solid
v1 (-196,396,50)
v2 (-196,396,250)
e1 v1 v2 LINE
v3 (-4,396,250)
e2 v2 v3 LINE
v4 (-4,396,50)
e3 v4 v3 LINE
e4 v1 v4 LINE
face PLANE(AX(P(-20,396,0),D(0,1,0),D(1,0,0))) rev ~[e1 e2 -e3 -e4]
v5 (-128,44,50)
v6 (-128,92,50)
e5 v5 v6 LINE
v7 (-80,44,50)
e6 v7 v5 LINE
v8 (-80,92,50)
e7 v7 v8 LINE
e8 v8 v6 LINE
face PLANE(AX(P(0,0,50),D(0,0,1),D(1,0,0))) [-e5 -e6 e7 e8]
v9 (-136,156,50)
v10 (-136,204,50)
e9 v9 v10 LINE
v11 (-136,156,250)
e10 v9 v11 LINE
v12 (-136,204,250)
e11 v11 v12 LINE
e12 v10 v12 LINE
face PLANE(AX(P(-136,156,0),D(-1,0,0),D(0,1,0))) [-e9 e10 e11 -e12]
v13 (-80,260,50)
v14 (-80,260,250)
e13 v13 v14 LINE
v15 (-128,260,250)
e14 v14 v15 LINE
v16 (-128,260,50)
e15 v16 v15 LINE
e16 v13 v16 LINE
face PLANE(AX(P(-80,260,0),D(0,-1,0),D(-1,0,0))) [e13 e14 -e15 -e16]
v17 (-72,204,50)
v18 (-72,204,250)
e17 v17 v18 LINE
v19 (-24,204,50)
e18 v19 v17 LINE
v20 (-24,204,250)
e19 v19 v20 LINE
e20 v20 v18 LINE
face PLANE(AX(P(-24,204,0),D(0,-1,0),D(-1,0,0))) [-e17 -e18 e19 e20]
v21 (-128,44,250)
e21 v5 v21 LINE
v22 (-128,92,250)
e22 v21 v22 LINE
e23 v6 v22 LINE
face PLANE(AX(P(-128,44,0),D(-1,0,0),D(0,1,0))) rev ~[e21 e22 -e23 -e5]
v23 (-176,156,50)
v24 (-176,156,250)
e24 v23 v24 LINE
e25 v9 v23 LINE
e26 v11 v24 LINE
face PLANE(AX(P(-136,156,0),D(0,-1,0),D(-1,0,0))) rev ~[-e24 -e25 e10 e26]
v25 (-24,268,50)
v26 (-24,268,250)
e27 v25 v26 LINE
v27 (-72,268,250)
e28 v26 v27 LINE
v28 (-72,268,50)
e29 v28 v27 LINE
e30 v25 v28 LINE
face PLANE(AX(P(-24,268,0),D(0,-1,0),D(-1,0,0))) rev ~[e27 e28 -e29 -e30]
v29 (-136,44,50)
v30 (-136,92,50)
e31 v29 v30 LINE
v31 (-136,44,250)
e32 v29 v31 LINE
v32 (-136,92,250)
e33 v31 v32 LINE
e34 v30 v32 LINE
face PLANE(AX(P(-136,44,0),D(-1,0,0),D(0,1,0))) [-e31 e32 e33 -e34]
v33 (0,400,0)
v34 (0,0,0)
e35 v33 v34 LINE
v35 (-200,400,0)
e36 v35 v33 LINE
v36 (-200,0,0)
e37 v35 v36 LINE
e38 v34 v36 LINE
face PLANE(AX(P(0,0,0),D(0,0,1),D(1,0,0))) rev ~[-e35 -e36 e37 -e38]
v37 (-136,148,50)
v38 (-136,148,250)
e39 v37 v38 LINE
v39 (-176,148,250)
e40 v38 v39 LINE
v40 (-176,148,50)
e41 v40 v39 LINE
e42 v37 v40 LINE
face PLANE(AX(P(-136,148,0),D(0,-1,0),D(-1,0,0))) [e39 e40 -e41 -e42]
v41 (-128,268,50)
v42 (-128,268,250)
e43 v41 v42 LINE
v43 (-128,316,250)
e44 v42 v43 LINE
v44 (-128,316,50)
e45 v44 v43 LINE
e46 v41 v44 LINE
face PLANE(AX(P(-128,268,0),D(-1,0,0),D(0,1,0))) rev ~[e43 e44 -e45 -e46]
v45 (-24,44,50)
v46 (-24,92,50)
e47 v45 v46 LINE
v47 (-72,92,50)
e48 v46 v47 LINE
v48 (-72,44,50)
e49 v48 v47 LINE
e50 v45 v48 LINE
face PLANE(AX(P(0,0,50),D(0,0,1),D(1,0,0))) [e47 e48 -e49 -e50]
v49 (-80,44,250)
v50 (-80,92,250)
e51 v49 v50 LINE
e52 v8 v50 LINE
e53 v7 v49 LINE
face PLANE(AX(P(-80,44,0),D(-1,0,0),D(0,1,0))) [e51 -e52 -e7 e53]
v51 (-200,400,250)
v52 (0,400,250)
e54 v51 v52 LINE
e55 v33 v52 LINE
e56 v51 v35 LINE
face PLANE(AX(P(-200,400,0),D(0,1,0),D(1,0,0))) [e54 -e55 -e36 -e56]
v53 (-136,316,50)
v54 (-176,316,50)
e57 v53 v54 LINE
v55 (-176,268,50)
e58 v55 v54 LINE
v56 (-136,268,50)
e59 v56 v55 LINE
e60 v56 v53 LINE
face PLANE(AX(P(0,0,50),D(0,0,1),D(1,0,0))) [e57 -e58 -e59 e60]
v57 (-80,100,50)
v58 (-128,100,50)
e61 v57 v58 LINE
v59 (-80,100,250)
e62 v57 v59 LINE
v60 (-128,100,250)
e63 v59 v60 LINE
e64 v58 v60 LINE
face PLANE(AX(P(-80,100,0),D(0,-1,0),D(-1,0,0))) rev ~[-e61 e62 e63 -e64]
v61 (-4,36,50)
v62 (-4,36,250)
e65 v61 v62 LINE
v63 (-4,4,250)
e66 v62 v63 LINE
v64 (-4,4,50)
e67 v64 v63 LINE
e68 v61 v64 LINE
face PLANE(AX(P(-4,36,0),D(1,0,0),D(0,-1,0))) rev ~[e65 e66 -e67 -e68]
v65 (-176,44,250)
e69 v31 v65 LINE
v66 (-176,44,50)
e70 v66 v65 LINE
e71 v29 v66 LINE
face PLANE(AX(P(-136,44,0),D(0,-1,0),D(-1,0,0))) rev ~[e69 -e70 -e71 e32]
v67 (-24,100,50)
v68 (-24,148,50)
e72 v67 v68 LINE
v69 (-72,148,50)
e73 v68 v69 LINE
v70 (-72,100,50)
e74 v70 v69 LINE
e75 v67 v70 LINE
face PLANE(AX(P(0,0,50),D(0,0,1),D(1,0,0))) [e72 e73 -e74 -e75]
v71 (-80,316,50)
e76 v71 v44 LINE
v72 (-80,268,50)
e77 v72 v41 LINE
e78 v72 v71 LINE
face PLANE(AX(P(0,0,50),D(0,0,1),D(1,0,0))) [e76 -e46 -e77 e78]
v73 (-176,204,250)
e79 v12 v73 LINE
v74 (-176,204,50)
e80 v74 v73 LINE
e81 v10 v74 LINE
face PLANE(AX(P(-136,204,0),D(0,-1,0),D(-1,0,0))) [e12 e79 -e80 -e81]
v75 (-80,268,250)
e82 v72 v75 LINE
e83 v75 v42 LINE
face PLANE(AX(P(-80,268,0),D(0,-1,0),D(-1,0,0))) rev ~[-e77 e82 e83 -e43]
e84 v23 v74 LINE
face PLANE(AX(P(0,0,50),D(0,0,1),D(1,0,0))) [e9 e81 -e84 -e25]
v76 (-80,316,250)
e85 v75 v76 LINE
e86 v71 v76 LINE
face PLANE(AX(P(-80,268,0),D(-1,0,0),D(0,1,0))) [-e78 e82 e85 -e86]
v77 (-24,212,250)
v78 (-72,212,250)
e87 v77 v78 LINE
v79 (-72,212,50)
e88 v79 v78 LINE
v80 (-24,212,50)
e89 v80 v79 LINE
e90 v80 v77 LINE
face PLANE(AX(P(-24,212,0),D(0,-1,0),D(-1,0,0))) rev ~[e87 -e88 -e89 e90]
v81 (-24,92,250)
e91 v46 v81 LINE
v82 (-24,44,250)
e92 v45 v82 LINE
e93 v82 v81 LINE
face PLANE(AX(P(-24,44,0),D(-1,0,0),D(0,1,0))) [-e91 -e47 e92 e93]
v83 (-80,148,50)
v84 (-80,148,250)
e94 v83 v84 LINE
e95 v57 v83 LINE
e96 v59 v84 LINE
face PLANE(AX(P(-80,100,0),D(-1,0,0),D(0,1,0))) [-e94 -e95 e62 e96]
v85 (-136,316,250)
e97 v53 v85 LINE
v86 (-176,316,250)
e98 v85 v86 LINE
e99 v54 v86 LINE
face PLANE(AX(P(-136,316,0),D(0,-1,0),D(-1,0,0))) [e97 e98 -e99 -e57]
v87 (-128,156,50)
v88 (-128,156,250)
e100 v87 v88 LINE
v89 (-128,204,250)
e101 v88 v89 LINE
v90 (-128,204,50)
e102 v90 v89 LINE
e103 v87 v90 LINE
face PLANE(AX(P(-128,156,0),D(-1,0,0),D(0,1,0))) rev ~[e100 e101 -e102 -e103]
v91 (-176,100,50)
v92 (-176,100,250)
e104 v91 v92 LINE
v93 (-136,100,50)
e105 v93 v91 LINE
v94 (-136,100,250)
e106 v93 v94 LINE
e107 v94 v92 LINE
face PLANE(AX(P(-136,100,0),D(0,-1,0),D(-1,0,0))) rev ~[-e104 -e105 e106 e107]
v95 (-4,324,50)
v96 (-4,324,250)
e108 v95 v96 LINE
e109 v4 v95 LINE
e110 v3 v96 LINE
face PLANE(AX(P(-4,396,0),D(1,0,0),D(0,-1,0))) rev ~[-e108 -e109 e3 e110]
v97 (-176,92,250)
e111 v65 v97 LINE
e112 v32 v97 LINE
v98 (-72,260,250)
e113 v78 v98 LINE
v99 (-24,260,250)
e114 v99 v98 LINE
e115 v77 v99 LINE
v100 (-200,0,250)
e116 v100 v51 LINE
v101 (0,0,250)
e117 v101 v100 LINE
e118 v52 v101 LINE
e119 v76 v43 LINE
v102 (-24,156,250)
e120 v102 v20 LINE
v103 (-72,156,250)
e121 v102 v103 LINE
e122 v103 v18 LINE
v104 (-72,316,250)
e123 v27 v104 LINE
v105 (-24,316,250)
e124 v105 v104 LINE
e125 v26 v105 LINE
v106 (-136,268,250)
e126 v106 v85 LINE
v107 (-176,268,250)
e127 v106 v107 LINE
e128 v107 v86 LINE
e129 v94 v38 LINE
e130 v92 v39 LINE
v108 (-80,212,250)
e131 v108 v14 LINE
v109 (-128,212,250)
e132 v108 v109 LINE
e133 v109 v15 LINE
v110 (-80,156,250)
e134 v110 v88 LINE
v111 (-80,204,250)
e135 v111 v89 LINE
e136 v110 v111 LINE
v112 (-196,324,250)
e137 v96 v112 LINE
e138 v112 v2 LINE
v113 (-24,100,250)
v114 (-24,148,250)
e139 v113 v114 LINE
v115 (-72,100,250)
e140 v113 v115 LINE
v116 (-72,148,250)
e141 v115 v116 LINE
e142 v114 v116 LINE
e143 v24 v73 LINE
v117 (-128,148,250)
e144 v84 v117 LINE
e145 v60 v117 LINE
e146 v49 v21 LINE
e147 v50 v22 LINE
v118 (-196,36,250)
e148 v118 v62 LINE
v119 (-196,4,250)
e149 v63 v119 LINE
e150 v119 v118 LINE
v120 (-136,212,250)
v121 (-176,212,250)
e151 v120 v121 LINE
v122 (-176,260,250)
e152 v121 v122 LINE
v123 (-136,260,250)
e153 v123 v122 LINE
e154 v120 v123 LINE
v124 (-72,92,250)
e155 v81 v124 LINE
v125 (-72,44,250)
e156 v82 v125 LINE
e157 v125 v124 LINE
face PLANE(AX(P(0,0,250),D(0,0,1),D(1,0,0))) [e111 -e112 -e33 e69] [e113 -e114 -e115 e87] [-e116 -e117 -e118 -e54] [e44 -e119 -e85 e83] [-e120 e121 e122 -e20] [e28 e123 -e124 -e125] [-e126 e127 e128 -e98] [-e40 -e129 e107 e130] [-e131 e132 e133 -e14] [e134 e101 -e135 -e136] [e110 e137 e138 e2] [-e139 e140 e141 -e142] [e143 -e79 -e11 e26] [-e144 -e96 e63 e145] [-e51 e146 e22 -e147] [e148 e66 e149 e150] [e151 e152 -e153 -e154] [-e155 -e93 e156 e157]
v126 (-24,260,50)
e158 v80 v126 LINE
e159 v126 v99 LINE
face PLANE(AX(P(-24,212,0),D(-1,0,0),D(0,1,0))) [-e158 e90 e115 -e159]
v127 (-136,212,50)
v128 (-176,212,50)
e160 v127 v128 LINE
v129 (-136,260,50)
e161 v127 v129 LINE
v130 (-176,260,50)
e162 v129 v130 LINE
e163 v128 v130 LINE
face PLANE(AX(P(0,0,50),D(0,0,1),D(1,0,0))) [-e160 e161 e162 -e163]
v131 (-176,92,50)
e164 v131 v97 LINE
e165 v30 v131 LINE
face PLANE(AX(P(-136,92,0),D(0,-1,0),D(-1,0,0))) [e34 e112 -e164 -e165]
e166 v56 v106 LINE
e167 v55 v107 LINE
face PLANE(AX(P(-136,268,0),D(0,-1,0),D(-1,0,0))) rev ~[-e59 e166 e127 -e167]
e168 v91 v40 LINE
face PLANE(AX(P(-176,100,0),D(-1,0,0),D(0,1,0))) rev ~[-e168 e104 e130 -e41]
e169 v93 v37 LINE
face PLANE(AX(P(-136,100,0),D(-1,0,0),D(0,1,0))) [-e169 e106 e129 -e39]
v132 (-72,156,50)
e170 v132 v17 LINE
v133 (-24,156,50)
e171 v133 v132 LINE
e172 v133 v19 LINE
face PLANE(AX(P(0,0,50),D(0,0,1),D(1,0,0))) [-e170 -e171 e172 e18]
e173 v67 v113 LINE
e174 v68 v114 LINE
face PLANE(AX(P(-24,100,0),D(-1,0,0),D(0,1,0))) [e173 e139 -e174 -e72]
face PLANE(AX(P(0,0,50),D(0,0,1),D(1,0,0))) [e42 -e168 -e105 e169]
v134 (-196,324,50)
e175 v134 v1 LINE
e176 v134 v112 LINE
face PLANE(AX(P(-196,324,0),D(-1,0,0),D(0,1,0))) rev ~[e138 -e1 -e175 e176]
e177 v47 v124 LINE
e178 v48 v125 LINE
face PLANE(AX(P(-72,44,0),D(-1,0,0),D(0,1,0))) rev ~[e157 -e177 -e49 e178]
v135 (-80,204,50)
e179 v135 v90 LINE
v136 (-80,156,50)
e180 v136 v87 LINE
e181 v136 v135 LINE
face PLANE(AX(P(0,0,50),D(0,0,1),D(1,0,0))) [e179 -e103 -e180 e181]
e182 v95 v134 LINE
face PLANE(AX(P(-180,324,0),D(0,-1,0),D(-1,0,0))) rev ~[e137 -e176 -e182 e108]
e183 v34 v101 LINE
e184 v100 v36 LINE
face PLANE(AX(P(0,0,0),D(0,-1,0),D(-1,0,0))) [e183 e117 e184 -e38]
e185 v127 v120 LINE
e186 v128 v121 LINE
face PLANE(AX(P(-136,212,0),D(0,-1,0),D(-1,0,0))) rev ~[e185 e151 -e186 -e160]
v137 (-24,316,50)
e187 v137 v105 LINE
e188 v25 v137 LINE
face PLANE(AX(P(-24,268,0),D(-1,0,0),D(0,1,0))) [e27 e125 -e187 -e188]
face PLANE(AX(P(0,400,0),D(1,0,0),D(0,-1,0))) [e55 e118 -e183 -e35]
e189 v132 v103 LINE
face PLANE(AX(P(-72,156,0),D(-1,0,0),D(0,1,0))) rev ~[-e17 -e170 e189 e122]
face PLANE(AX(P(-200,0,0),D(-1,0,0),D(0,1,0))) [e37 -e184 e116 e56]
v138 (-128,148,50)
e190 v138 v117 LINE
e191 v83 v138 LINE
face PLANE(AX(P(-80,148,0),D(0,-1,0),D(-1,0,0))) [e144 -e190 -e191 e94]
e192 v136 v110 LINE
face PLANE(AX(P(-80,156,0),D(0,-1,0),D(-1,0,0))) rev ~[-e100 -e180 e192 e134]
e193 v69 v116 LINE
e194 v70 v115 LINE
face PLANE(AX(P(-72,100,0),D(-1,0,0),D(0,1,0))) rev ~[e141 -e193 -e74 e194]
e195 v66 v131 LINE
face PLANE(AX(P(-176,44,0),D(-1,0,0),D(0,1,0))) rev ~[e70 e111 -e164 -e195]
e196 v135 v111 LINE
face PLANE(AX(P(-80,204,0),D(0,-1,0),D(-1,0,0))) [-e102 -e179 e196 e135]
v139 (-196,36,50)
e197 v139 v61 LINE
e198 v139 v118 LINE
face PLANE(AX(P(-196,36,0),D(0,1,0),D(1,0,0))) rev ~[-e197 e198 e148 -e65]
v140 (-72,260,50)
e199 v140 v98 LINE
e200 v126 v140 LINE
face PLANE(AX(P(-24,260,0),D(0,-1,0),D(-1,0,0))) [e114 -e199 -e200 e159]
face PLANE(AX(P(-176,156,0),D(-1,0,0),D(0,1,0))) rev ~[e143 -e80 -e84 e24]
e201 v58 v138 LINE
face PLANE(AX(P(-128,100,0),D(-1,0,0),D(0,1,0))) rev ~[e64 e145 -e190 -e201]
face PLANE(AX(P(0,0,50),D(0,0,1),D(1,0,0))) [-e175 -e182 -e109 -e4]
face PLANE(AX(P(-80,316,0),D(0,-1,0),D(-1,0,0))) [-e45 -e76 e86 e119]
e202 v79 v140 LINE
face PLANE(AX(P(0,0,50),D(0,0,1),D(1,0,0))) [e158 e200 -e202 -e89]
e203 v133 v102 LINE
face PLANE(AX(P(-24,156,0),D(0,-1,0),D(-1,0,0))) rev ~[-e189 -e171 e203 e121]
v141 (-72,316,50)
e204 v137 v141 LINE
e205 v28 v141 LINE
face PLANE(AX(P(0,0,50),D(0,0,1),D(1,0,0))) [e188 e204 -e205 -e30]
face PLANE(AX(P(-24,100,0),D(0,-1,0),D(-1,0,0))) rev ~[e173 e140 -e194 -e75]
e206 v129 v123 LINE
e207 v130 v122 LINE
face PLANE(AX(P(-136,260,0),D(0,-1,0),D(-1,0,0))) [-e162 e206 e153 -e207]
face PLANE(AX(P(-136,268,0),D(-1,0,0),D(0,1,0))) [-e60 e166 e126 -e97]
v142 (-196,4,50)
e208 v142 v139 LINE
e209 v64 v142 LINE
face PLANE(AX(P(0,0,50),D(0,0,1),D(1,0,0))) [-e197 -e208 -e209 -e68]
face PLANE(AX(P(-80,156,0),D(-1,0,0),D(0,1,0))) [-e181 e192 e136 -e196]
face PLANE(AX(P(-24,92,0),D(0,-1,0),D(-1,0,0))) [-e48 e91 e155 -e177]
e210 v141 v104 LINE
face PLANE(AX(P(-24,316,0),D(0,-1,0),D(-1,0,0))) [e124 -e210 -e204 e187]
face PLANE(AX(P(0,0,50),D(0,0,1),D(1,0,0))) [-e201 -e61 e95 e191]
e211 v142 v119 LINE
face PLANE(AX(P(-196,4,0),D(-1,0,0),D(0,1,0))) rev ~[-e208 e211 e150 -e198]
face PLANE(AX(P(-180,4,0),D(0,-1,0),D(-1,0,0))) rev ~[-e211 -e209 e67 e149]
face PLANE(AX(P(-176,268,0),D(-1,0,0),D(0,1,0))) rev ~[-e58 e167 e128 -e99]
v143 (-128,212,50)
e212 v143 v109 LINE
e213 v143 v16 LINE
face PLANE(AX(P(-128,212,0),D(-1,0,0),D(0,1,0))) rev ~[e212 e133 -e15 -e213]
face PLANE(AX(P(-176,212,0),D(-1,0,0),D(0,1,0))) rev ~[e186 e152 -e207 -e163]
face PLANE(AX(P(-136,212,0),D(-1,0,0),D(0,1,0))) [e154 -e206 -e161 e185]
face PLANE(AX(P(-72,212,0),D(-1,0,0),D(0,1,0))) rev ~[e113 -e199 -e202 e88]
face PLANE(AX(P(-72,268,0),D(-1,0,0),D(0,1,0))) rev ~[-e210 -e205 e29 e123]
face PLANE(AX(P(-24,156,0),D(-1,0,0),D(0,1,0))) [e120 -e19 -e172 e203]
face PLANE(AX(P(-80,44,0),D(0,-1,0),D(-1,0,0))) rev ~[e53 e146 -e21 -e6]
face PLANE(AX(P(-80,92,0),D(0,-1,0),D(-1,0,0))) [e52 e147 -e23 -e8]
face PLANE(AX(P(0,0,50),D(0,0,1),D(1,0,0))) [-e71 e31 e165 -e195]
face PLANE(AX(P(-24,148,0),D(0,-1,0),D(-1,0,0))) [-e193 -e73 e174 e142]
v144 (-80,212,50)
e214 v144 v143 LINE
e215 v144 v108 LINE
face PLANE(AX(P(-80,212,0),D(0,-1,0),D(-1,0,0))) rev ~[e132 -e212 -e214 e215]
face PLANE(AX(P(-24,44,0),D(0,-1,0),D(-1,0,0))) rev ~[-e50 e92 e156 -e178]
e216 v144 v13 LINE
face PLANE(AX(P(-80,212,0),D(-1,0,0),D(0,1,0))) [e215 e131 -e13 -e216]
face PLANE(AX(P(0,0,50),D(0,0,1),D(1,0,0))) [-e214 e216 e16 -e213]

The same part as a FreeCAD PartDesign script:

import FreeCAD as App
import Part
import Sketcher

V = App.Vector
Q = App.Units.Quantity

doc = App.newDocument("Part")
body = doc.addObject("PartDesign::Body", "Body")

sketch1 = body.newObject("Sketcher::SketchObject", "Sketch")
sketch1.AttachmentSupport = (doc.getObject("XY_Plane"), [""])
sketch1.MapMode = "FlatFace"
sketch1.addGeometry(Part.LineSegment(V(-200, 0, 0), V(0, 0, 0)), False)
sketch1.addGeometry(Part.LineSegment(V(0, 0, 0), V(0, 400, 0)), False)
sketch1.addGeometry(Part.LineSegment(V(0, 400, 0), V(-200, 400, 0)), False)
sketch1.addGeometry(Part.LineSegment(V(-200, 400, 0), V(-200, 0, 0)), False)
sketch1.addGeometry(Part.LineSegment(V(-136, 92, 0), V(-136, 44, 0)), False)
sketch1.addGeometry(Part.LineSegment(V(-136, 44, 0), V(-176, 44, 0)), False)
sketch1.addGeometry(Part.LineSegment(V(-176, 44, 0), V(-176, 92, 0)), False)
sketch1.addGeometry(Part.LineSegment(V(-176, 92, 0), V(-136, 92, 0)), False)
sketch1.addGeometry(Part.LineSegment(V(-80, 92, 0), V(-80, 44, 0)), False)
sketch1.addGeometry(Part.LineSegment(V(-80, 44, 0), V(-128, 44, 0)), False)
sketch1.addGeometry(Part.LineSegment(V(-128, 44, 0), V(-128, 92, 0)), False)
sketch1.addGeometry(Part.LineSegment(V(-128, 92, 0), V(-80, 92, 0)), False)
sketch1.addGeometry(Part.LineSegment(V(-136, 148, 0), V(-136, 100, 0)), False)
sketch1.addGeometry(Part.LineSegment(V(-136, 100, 0), V(-176, 100, 0)), False)
sketch1.addGeometry(Part.LineSegment(V(-176, 100, 0), V(-176, 148, 0)), False)
sketch1.addGeometry(Part.LineSegment(V(-176, 148, 0), V(-136, 148, 0)), False)
sketch1.addGeometry(Part.LineSegment(V(-176, 204, 0), V(-136, 204, 0)), False)
sketch1.addGeometry(Part.LineSegment(V(-136, 204, 0), V(-136, 156, 0)), False)
sketch1.addGeometry(Part.LineSegment(V(-136, 156, 0), V(-176, 156, 0)), False)
sketch1.addGeometry(Part.LineSegment(V(-176, 156, 0), V(-176, 204, 0)), False)
sketch1.addGeometry(Part.LineSegment(V(-80, 148, 0), V(-80, 100, 0)), False)
sketch1.addGeometry(Part.LineSegment(V(-80, 100, 0), V(-128, 100, 0)), False)
sketch1.addGeometry(Part.LineSegment(V(-128, 100, 0), V(-128, 148, 0)), False)
sketch1.addGeometry(Part.LineSegment(V(-128, 148, 0), V(-80, 148, 0)), False)
sketch1.addGeometry(Part.LineSegment(V(-128, 204, 0), V(-80, 204, 0)), False)
sketch1.addGeometry(Part.LineSegment(V(-80, 204, 0), V(-80, 156, 0)), False)
sketch1.addGeometry(Part.LineSegment(V(-80, 156, 0), V(-128, 156, 0)), False)
sketch1.addGeometry(Part.LineSegment(V(-128, 156, 0), V(-128, 204, 0)), False)
sketch1.addGeometry(Part.LineSegment(V(-4, 36, 0), V(-4, 4, 0)), False)
sketch1.addGeometry(Part.LineSegment(V(-4, 4, 0), V(-196, 4, 0)), False)
sketch1.addGeometry(Part.LineSegment(V(-196, 4, 0), V(-196, 36, 0)), False)
sketch1.addGeometry(Part.LineSegment(V(-196, 36, 0), V(-4, 36, 0)), False)
sketch1.addGeometry(Part.LineSegment(V(-24, 44, 0), V(-72, 44, 0)), False)
sketch1.addGeometry(Part.LineSegment(V(-72, 44, 0), V(-72, 92, 0)), False)
sketch1.addGeometry(Part.LineSegment(V(-72, 92, 0), V(-24, 92, 0)), False)
sketch1.addGeometry(Part.LineSegment(V(-24, 92, 0), V(-24, 44, 0)), False)
sketch1.addGeometry(Part.LineSegment(V(-24, 148, 0), V(-24, 100, 0)), False)
sketch1.addGeometry(Part.LineSegment(V(-24, 100, 0), V(-72, 100, 0)), False)
sketch1.addGeometry(Part.LineSegment(V(-72, 100, 0), V(-72, 148, 0)), False)
sketch1.addGeometry(Part.LineSegment(V(-72, 148, 0), V(-24, 148, 0)), False)
sketch1.addGeometry(Part.LineSegment(V(-24, 156, 0), V(-72, 156, 0)), False)
sketch1.addGeometry(Part.LineSegment(V(-72, 156, 0), V(-72, 204, 0)), False)
sketch1.addGeometry(Part.LineSegment(V(-72, 204, 0), V(-24, 204, 0)), False)
sketch1.addGeometry(Part.LineSegment(V(-24, 204, 0), V(-24, 156, 0)), False)
sketch1.addGeometry(Part.LineSegment(V(-136, 260, 0), V(-136, 212, 0)), False)
sketch1.addGeometry(Part.LineSegment(V(-136, 212, 0), V(-176, 212, 0)), False)
sketch1.addGeometry(Part.LineSegment(V(-176, 212, 0), V(-176, 260, 0)), False)
sketch1.addGeometry(Part.LineSegment(V(-176, 260, 0), V(-136, 260, 0)), False)
sketch1.addGeometry(Part.LineSegment(V(-176, 316, 0), V(-136, 316, 0)), False)
sketch1.addGeometry(Part.LineSegment(V(-136, 316, 0), V(-136, 268, 0)), False)
sketch1.addGeometry(Part.LineSegment(V(-136, 268, 0), V(-176, 268, 0)), False)
sketch1.addGeometry(Part.LineSegment(V(-176, 268, 0), V(-176, 316, 0)), False)
sketch1.addGeometry(Part.LineSegment(V(-80, 260, 0), V(-80, 212, 0)), False)
sketch1.addGeometry(Part.LineSegment(V(-80, 212, 0), V(-128, 212, 0)), False)
sketch1.addGeometry(Part.LineSegment(V(-128, 212, 0), V(-128, 260, 0)), False)
sketch1.addGeometry(Part.LineSegment(V(-128, 260, 0), V(-80, 260, 0)), False)
sketch1.addGeometry(Part.LineSegment(V(-128, 316, 0), V(-80, 316, 0)), False)
sketch1.addGeometry(Part.LineSegment(V(-80, 316, 0), V(-80, 268, 0)), False)
sketch1.addGeometry(Part.LineSegment(V(-80, 268, 0), V(-128, 268, 0)), False)
sketch1.addGeometry(Part.LineSegment(V(-128, 268, 0), V(-128, 316, 0)), False)
sketch1.addGeometry(Part.LineSegment(V(-24, 212, 0), V(-72, 212, 0)), False)
sketch1.addGeometry(Part.LineSegment(V(-72, 212, 0), V(-72, 260, 0)), False)
sketch1.addGeometry(Part.LineSegment(V(-72, 260, 0), V(-24, 260, 0)), False)
sketch1.addGeometry(Part.LineSegment(V(-24, 260, 0), V(-24, 212, 0)), False)
sketch1.addGeometry(Part.LineSegment(V(-72, 316, 0), V(-24, 316, 0)), False)
sketch1.addGeometry(Part.LineSegment(V(-24, 316, 0), V(-24, 268, 0)), False)
sketch1.addGeometry(Part.LineSegment(V(-24, 268, 0), V(-72, 268, 0)), False)
sketch1.addGeometry(Part.LineSegment(V(-72, 268, 0), V(-72, 316, 0)), False)
sketch1.addGeometry(Part.LineSegment(V(-196, 324, 0), V(-196, 396, 0)), False)
sketch1.addGeometry(Part.LineSegment(V(-196, 396, 0), V(-4, 396, 0)), False)
sketch1.addGeometry(Part.LineSegment(V(-4, 396, 0), V(-4, 324, 0)), False)
sketch1.addGeometry(Part.LineSegment(V(-4, 324, 0), V(-196, 324, 0)), False)
sketch1.addConstraint(Sketcher.Constraint("Coincident", 0, 2, 1, 1))
sketch1.addConstraint(Sketcher.Constraint("Coincident", 1, 2, 2, 1))
sketch1.addConstraint(Sketcher.Constraint("Coincident", 2, 2, 3, 1))
sketch1.addConstraint(Sketcher.Constraint("Coincident", 3, 2, 0, 1))
sketch1.addConstraint(Sketcher.Constraint("Coincident", 4, 2, 5, 1))
sketch1.addConstraint(Sketcher.Constraint("Coincident", 5, 2, 6, 1))
sketch1.addConstraint(Sketcher.Constraint("Coincident", 6, 2, 7, 1))
sketch1.addConstraint(Sketcher.Constraint("Coincident", 7, 2, 4, 1))
sketch1.addConstraint(Sketcher.Constraint("Coincident", 8, 2, 9, 1))
sketch1.addConstraint(Sketcher.Constraint("Coincident", 9, 2, 10, 1))
sketch1.addConstraint(Sketcher.Constraint("Coincident", 10, 2, 11, 1))
sketch1.addConstraint(Sketcher.Constraint("Coincident", 11, 2, 8, 1))
sketch1.addConstraint(Sketcher.Constraint("Coincident", 12, 2, 13, 1))
sketch1.addConstraint(Sketcher.Constraint("Coincident", 13, 2, 14, 1))
sketch1.addConstraint(Sketcher.Constraint("Coincident", 14, 2, 15, 1))
sketch1.addConstraint(Sketcher.Constraint("Coincident", 15, 2, 12, 1))
sketch1.addConstraint(Sketcher.Constraint("Coincident", 16, 2, 17, 1))
sketch1.addConstraint(Sketcher.Constraint("Coincident", 17, 2, 18, 1))
sketch1.addConstraint(Sketcher.Constraint("Coincident", 18, 2, 19, 1))
sketch1.addConstraint(Sketcher.Constraint("Coincident", 19, 2, 16, 1))
sketch1.addConstraint(Sketcher.Constraint("Coincident", 20, 2, 21, 1))
sketch1.addConstraint(Sketcher.Constraint("Coincident", 21, 2, 22, 1))
sketch1.addConstraint(Sketcher.Constraint("Coincident", 22, 2, 23, 1))
sketch1.addConstraint(Sketcher.Constraint("Coincident", 23, 2, 20, 1))
sketch1.addConstraint(Sketcher.Constraint("Coincident", 24, 2, 25, 1))
sketch1.addConstraint(Sketcher.Constraint("Coincident", 25, 2, 26, 1))
sketch1.addConstraint(Sketcher.Constraint("Coincident", 26, 2, 27, 1))
sketch1.addConstraint(Sketcher.Constraint("Coincident", 27, 2, 24, 1))
sketch1.addConstraint(Sketcher.Constraint("Coincident", 28, 2, 29, 1))
sketch1.addConstraint(Sketcher.Constraint("Coincident", 29, 2, 30, 1))
sketch1.addConstraint(Sketcher.Constraint("Coincident", 30, 2, 31, 1))
sketch1.addConstraint(Sketcher.Constraint("Coincident", 31, 2, 28, 1))
sketch1.addConstraint(Sketcher.Constraint("Coincident", 32, 2, 33, 1))
sketch1.addConstraint(Sketcher.Constraint("Coincident", 33, 2, 34, 1))
sketch1.addConstraint(Sketcher.Constraint("Coincident", 34, 2, 35, 1))
sketch1.addConstraint(Sketcher.Constraint("Coincident", 35, 2, 32, 1))
sketch1.addConstraint(Sketcher.Constraint("Coincident", 36, 2, 37, 1))
sketch1.addConstraint(Sketcher.Constraint("Coincident", 37, 2, 38, 1))
sketch1.addConstraint(Sketcher.Constraint("Coincident", 38, 2, 39, 1))
sketch1.addConstraint(Sketcher.Constraint("Coincident", 39, 2, 36, 1))
sketch1.addConstraint(Sketcher.Constraint("Coincident", 40, 2, 41, 1))
sketch1.addConstraint(Sketcher.Constraint("Coincident", 41, 2, 42, 1))
sketch1.addConstraint(Sketcher.Constraint("Coincident", 42, 2, 43, 1))
sketch1.addConstraint(Sketcher.Constraint("Coincident", 43, 2, 40, 1))
sketch1.addConstraint(Sketcher.Constraint("Coincident", 44, 2, 45, 1))
sketch1.addConstraint(Sketcher.Constraint("Coincident", 45, 2, 46, 1))
sketch1.addConstraint(Sketcher.Constraint("Coincident", 46, 2, 47, 1))
sketch1.addConstraint(Sketcher.Constraint("Coincident", 47, 2, 44, 1))
sketch1.addConstraint(Sketcher.Constraint("Coincident", 48, 2, 49, 1))
sketch1.addConstraint(Sketcher.Constraint("Coincident", 49, 2, 50, 1))
sketch1.addConstraint(Sketcher.Constraint("Coincident", 50, 2, 51, 1))
sketch1.addConstraint(Sketcher.Constraint("Coincident", 51, 2, 48, 1))
sketch1.addConstraint(Sketcher.Constraint("Coincident", 52, 2, 53, 1))
sketch1.addConstraint(Sketcher.Constraint("Coincident", 53, 2, 54, 1))
sketch1.addConstraint(Sketcher.Constraint("Coincident", 54, 2, 55, 1))
sketch1.addConstraint(Sketcher.Constraint("Coincident", 55, 2, 52, 1))
sketch1.addConstraint(Sketcher.Constraint("Coincident", 56, 2, 57, 1))
sketch1.addConstraint(Sketcher.Constraint("Coincident", 57, 2, 58, 1))
sketch1.addConstraint(Sketcher.Constraint("Coincident", 58, 2, 59, 1))
sketch1.addConstraint(Sketcher.Constraint("Coincident", 59, 2, 56, 1))
sketch1.addConstraint(Sketcher.Constraint("Coincident", 60, 2, 61, 1))
sketch1.addConstraint(Sketcher.Constraint("Coincident", 61, 2, 62, 1))
sketch1.addConstraint(Sketcher.Constraint("Coincident", 62, 2, 63, 1))
sketch1.addConstraint(Sketcher.Constraint("Coincident", 63, 2, 60, 1))
sketch1.addConstraint(Sketcher.Constraint("Coincident", 64, 2, 65, 1))
sketch1.addConstraint(Sketcher.Constraint("Coincident", 65, 2, 66, 1))
sketch1.addConstraint(Sketcher.Constraint("Coincident", 66, 2, 67, 1))
sketch1.addConstraint(Sketcher.Constraint("Coincident", 67, 2, 64, 1))
sketch1.addConstraint(Sketcher.Constraint("Coincident", 68, 2, 69, 1))
sketch1.addConstraint(Sketcher.Constraint("Coincident", 69, 2, 70, 1))
sketch1.addConstraint(Sketcher.Constraint("Coincident", 70, 2, 71, 1))
sketch1.addConstraint(Sketcher.Constraint("Coincident", 71, 2, 68, 1))
sketch1.addConstraint(Sketcher.Constraint("Horizontal", 0))
sketch1.addConstraint(Sketcher.Constraint("Vertical", 1))
sketch1.addConstraint(Sketcher.Constraint("Horizontal", 2))
sketch1.addConstraint(Sketcher.Constraint("Vertical", 3))
sketch1.addConstraint(Sketcher.Constraint("Vertical", 4))
sketch1.addConstraint(Sketcher.Constraint("Horizontal", 5))
sketch1.addConstraint(Sketcher.Constraint("Vertical", 6))
sketch1.addConstraint(Sketcher.Constraint("Horizontal", 7))
sketch1.addConstraint(Sketcher.Constraint("Vertical", 8))
sketch1.addConstraint(Sketcher.Constraint("Horizontal", 9))
sketch1.addConstraint(Sketcher.Constraint("Vertical", 10))
sketch1.addConstraint(Sketcher.Constraint("Horizontal", 11))
sketch1.addConstraint(Sketcher.Constraint("Vertical", 12))
sketch1.addConstraint(Sketcher.Constraint("Horizontal", 13))
sketch1.addConstraint(Sketcher.Constraint("Vertical", 14))
sketch1.addConstraint(Sketcher.Constraint("Horizontal", 15))
sketch1.addConstraint(Sketcher.Constraint("Horizontal", 16))
sketch1.addConstraint(Sketcher.Constraint("Vertical", 17))
sketch1.addConstraint(Sketcher.Constraint("Horizontal", 18))
sketch1.addConstraint(Sketcher.Constraint("Vertical", 19))
sketch1.addConstraint(Sketcher.Constraint("Vertical", 20))
sketch1.addConstraint(Sketcher.Constraint("Horizontal", 21))
sketch1.addConstraint(Sketcher.Constraint("Vertical", 22))
sketch1.addConstraint(Sketcher.Constraint("Horizontal", 23))
sketch1.addConstraint(Sketcher.Constraint("Horizontal", 24))
sketch1.addConstraint(Sketcher.Constraint("Vertical", 25))
sketch1.addConstraint(Sketcher.Constraint("Horizontal", 26))
sketch1.addConstraint(Sketcher.Constraint("Vertical", 27))
sketch1.addConstraint(Sketcher.Constraint("Vertical", 28))
sketch1.addConstraint(Sketcher.Constraint("Horizontal", 29))
sketch1.addConstraint(Sketcher.Constraint("Vertical", 30))
sketch1.addConstraint(Sketcher.Constraint("Horizontal", 31))
sketch1.addConstraint(Sketcher.Constraint("Horizontal", 32))
sketch1.addConstraint(Sketcher.Constraint("Vertical", 33))
sketch1.addConstraint(Sketcher.Constraint("Horizontal", 34))
sketch1.addConstraint(Sketcher.Constraint("Vertical", 35))
sketch1.addConstraint(Sketcher.Constraint("Vertical", 36))
sketch1.addConstraint(Sketcher.Constraint("Horizontal", 37))
sketch1.addConstraint(Sketcher.Constraint("Vertical", 38))
sketch1.addConstraint(Sketcher.Constraint("Horizontal", 39))
sketch1.addConstraint(Sketcher.Constraint("Horizontal", 40))
sketch1.addConstraint(Sketcher.Constraint("Vertical", 41))
sketch1.addConstraint(Sketcher.Constraint("Horizontal", 42))
sketch1.addConstraint(Sketcher.Constraint("Vertical", 43))
sketch1.addConstraint(Sketcher.Constraint("Vertical", 44))
sketch1.addConstraint(Sketcher.Constraint("Horizontal", 45))
sketch1.addConstraint(Sketcher.Constraint("Vertical", 46))
sketch1.addConstraint(Sketcher.Constraint("Horizontal", 47))
sketch1.addConstraint(Sketcher.Constraint("Horizontal", 48))
sketch1.addConstraint(Sketcher.Constraint("Vertical", 49))
sketch1.addConstraint(Sketcher.Constraint("Horizontal", 50))
sketch1.addConstraint(Sketcher.Constraint("Vertical", 51))
sketch1.addConstraint(Sketcher.Constraint("Vertical", 52))
sketch1.addConstraint(Sketcher.Constraint("Horizontal", 53))
sketch1.addConstraint(Sketcher.Constraint("Vertical", 54))
sketch1.addConstraint(Sketcher.Constraint("Horizontal", 55))
sketch1.addConstraint(Sketcher.Constraint("Horizontal", 56))
sketch1.addConstraint(Sketcher.Constraint("Vertical", 57))
sketch1.addConstraint(Sketcher.Constraint("Horizontal", 58))
sketch1.addConstraint(Sketcher.Constraint("Vertical", 59))
sketch1.addConstraint(Sketcher.Constraint("Horizontal", 60))
sketch1.addConstraint(Sketcher.Constraint("Vertical", 61))
sketch1.addConstraint(Sketcher.Constraint("Horizontal", 62))
sketch1.addConstraint(Sketcher.Constraint("Vertical", 63))
sketch1.addConstraint(Sketcher.Constraint("Horizontal", 64))
sketch1.addConstraint(Sketcher.Constraint("Vertical", 65))
sketch1.addConstraint(Sketcher.Constraint("Horizontal", 66))
sketch1.addConstraint(Sketcher.Constraint("Vertical", 67))
sketch1.addConstraint(Sketcher.Constraint("Vertical", 68))
sketch1.addConstraint(Sketcher.Constraint("Horizontal", 69))
sketch1.addConstraint(Sketcher.Constraint("Vertical", 70))
sketch1.addConstraint(Sketcher.Constraint("Horizontal", 71))
sketch1.addConstraint(Sketcher.Constraint("Coincident", 0, 2, -1, 1))
sketch1.addConstraint(Sketcher.Constraint("Horizontal", 5, 2, 8, 2))
sketch1.addConstraint(Sketcher.Constraint("Horizontal", 7, 2, 10, 2))
sketch1.addConstraint(Sketcher.Constraint("Horizontal", 13, 2, 20, 2))
sketch1.addConstraint(Sketcher.Constraint("Horizontal", 15, 2, 22, 2))
sketch1.addConstraint(Sketcher.Constraint("Horizontal", 19, 2, 24, 2))
sketch1.addConstraint(Sketcher.Constraint("Horizontal", 18, 2, 25, 2))
sketch1.addConstraint(Sketcher.Constraint("Horizontal", 9, 2, 32, 2))
sketch1.addConstraint(Sketcher.Constraint("Horizontal", 11, 2, 33, 2))
sketch1.addConstraint(Sketcher.Constraint("Horizontal", 21, 2, 36, 2))
sketch1.addConstraint(Sketcher.Constraint("Horizontal", 23, 2, 38, 2))
sketch1.addConstraint(Sketcher.Constraint("Horizontal", 26, 2, 40, 2))
sketch1.addConstraint(Sketcher.Constraint("Horizontal", 27, 2, 41, 2))
sketch1.addConstraint(Sketcher.Constraint("Horizontal", 45, 2, 52, 2))
sketch1.addConstraint(Sketcher.Constraint("Horizontal", 47, 2, 54, 2))
sketch1.addConstraint(Sketcher.Constraint("Horizontal", 51, 2, 56, 2))
sketch1.addConstraint(Sketcher.Constraint("Horizontal", 50, 2, 57, 2))
sketch1.addConstraint(Sketcher.Constraint("Horizontal", 53, 2, 60, 2))
sketch1.addConstraint(Sketcher.Constraint("Horizontal", 55, 2, 61, 2))
sketch1.addConstraint(Sketcher.Constraint("Horizontal", 59, 2, 64, 2))
sketch1.addConstraint(Sketcher.Constraint("Horizontal", 58, 2, 65, 2))
sketch1.addConstraint(Sketcher.Constraint("Vertical", 7, 2, 12, 2))
sketch1.addConstraint(Sketcher.Constraint("Vertical", 6, 2, 13, 2))
sketch1.addConstraint(Sketcher.Constraint("Vertical", 15, 2, 16, 2))
sketch1.addConstraint(Sketcher.Constraint("Vertical", 14, 2, 18, 2))
sketch1.addConstraint(Sketcher.Constraint("Vertical", 11, 2, 20, 2))
sketch1.addConstraint(Sketcher.Constraint("Vertical", 10, 2, 21, 2))
sketch1.addConstraint(Sketcher.Constraint("Vertical", 23, 2, 24, 2))
sketch1.addConstraint(Sketcher.Constraint("Vertical", 22, 2, 26, 2))
sketch1.addConstraint(Sketcher.Constraint("Vertical", 35, 2, 36, 2))
sketch1.addConstraint(Sketcher.Constraint("Vertical", 33, 2, 37, 2))
sketch1.addConstraint(Sketcher.Constraint("Vertical", 38, 2, 40, 2))
sketch1.addConstraint(Sketcher.Constraint("Vertical", 39, 2, 42, 2))
sketch1.addConstraint(Sketcher.Constraint("Vertical", 17, 2, 44, 2))
sketch1.addConstraint(Sketcher.Constraint("Vertical", 19, 2, 45, 2))
sketch1.addConstraint(Sketcher.Constraint("Vertical", 47, 2, 48, 2))
sketch1.addConstraint(Sketcher.Constraint("Vertical", 46, 2, 50, 2))
sketch1.addConstraint(Sketcher.Constraint("Vertical", 25, 2, 52, 2))
sketch1.addConstraint(Sketcher.Constraint("Vertical", 27, 2, 53, 2))
sketch1.addConstraint(Sketcher.Constraint("Vertical", 55, 2, 56, 2))
sketch1.addConstraint(Sketcher.Constraint("Vertical", 54, 2, 58, 2))
sketch1.addConstraint(Sketcher.Constraint("Vertical", 41, 2, 60, 2))
sketch1.addConstraint(Sketcher.Constraint("Vertical", 43, 2, 62, 2))
sketch1.addConstraint(Sketcher.Constraint("Vertical", 63, 2, 64, 2))
sketch1.addConstraint(Sketcher.Constraint("Vertical", 61, 2, 66, 2))
sketch1.addConstraint(Sketcher.Constraint("Vertical", 30, 2, 68, 2))
sketch1.addConstraint(Sketcher.Constraint("Vertical", 31, 2, 69, 2))
sketch1.addConstraint(Sketcher.Constraint("Equal", 26, 32))
sketch1.addConstraint(Sketcher.Constraint("Equal", 66, 4))
sketch1.addConstraint(Sketcher.Constraint("Equal", 10, 12))
sketch1.addConstraint(Sketcher.Constraint("Equal", 14, 17))
sketch1.addConstraint(Sketcher.Constraint("Equal", 43, 44))
sketch1.addConstraint(Sketcher.Constraint("Equal", 46, 49))
sketch1.addConstraint(Sketcher.Constraint("DistanceX", 0, 1, 0, 2, Q("200 mm")))
sketch1.addConstraint(Sketcher.Constraint("DistanceX", 5, 2, 5, 1, Q("40 mm")))
sketch1.addConstraint(Sketcher.Constraint("DistanceX", 9, 2, 9, 1, Q("48 mm")))
sketch1.addConstraint(Sketcher.Constraint("DistanceX", 29, 2, 29, 1, Q("192 mm")))
sketch1.addConstraint(Sketcher.Constraint("DistanceY", 1, 1, 1, 2, Q("400 mm")))
sketch1.addConstraint(Sketcher.Constraint("DistanceY", 28, 2, 28, 1, Q("32 mm")))
sketch1.addConstraint(Sketcher.Constraint("DistanceX", 28, 2, -1, 1, Q("4 mm")))
sketch1.addConstraint(Sketcher.Constraint("DistanceY", -1, 1, 28, 2, Q("4 mm")))
sketch1.addConstraint(Sketcher.Constraint("DistanceY", 68, 1, 68, 2, Q("72 mm")))
sketch1.addConstraint(Sketcher.Constraint("DistanceX", 4, 2, -1, 1, Q("136 mm")))
sketch1.addConstraint(Sketcher.Constraint("DistanceY", -1, 1, 4, 2, Q("44 mm")))
sketch1.addConstraint(Sketcher.Constraint("DistanceX", 8, 2, -1, 1, Q("80 mm")))
sketch1.addConstraint(Sketcher.Constraint("DistanceY", -1, 1, 12, 2, Q("100 mm")))
sketch1.addConstraint(Sketcher.Constraint("DistanceY", -1, 1, 16, 2, Q("204 mm")))
sketch1.addConstraint(Sketcher.Constraint("DistanceX", 32, 2, -1, 1, Q("72 mm")))
sketch1.addConstraint(Sketcher.Constraint("DistanceY", -1, 1, 44, 2, Q("212 mm")))
sketch1.addConstraint(Sketcher.Constraint("DistanceY", -1, 1, 48, 2, Q("316 mm")))
sketch1.addConstraint(Sketcher.Constraint("DistanceY", -1, 1, 68, 2, Q("396 mm")))
pad1 = body.newObject("PartDesign::Pad", "Pad")
pad1.Profile = sketch1
pad1.Length = 250

sketch2 = body.newObject("Sketcher::SketchObject", "Sketch001")
sketch2.AttachmentSupport = (doc.getObject("XY_Plane"), [""])
sketch2.MapMode = "FlatFace"
sketch2.addGeometry(Part.LineSegment(V(-200, 0, 0), V(0, 0, 0)), False)
sketch2.addGeometry(Part.LineSegment(V(0, 0, 0), V(0, 400, 0)), False)
sketch2.addGeometry(Part.LineSegment(V(0, 400, 0), V(-200, 400, 0)), False)
sketch2.addGeometry(Part.LineSegment(V(-200, 400, 0), V(-200, 0, 0)), False)
sketch2.addConstraint(Sketcher.Constraint("Coincident", 0, 2, 1, 1))
sketch2.addConstraint(Sketcher.Constraint("Coincident", 1, 2, 2, 1))
sketch2.addConstraint(Sketcher.Constraint("Coincident", 2, 2, 3, 1))
sketch2.addConstraint(Sketcher.Constraint("Coincident", 3, 2, 0, 1))
sketch2.addConstraint(Sketcher.Constraint("Horizontal", 0))
sketch2.addConstraint(Sketcher.Constraint("Vertical", 1))
sketch2.addConstraint(Sketcher.Constraint("Horizontal", 2))
sketch2.addConstraint(Sketcher.Constraint("Vertical", 3))
sketch2.addConstraint(Sketcher.Constraint("Coincident", 0, 2, -1, 1))
sketch2.addConstraint(Sketcher.Constraint("DistanceX", 0, 1, 0, 2, Q("200 mm")))
sketch2.addConstraint(Sketcher.Constraint("DistanceY", 1, 1, 1, 2, Q("400 mm")))
pad2 = body.newObject("PartDesign::Pad", "Pad001")
pad2.Profile = sketch2
pad2.Length = 50

doc.recompute()
